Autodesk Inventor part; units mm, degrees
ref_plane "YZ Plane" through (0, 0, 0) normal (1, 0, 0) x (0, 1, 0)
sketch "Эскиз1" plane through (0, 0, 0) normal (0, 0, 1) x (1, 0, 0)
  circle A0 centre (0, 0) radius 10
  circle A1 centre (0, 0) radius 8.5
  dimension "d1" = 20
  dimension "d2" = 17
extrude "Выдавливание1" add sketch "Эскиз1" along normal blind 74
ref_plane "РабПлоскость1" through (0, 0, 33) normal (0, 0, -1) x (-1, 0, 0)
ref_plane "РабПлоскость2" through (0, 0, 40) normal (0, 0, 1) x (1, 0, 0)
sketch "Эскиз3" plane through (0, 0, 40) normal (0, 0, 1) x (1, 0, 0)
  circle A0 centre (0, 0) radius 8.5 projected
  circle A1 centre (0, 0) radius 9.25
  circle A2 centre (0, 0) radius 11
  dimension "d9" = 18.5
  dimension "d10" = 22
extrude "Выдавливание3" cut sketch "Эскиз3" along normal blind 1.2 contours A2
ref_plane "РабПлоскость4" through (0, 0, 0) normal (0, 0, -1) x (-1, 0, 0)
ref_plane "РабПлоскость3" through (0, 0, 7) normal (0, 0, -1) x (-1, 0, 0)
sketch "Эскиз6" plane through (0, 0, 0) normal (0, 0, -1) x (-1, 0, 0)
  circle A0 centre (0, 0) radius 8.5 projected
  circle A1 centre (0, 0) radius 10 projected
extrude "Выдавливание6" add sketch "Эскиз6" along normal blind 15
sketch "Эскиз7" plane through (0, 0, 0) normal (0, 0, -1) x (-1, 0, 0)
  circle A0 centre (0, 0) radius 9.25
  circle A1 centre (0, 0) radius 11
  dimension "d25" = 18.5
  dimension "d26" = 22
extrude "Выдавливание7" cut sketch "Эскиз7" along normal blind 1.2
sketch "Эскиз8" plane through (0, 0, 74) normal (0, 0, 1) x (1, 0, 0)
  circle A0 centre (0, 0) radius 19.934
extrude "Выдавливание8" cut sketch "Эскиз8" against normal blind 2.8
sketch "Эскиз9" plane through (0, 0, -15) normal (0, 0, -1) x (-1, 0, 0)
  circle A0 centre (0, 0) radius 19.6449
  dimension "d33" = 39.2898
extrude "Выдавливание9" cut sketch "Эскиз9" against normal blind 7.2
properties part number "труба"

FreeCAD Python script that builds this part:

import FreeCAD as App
import Part
import Sketcher
Q = App.Units.Quantity

doc = App.newDocument("Part")
body = doc.addObject("PartDesign::Body", "Body")

sketch1 = doc.addObject("Sketcher::SketchObject", "Sketch")
body.addObject(sketch1)
sketch1.AttachmentSupport = (doc.XY_Plane, [""])
sketch1.MapMode = "FlatFace"
sketch1.addGeometry([
    Part.Circle(App.Vector(0, 0, 0), App.Vector(0, 0, 1), 10),
    Part.Circle(App.Vector(0, 0, 0), App.Vector(0, 0, 1), 8),
], False)
sketch1.addConstraint([
    Sketcher.Constraint("Coincident", 0, 3, -1, 1),
    Sketcher.Constraint("Coincident", 1, 3, -1, 1),
    Sketcher.Constraint("Diameter", 0, Q("20 mm")),
    Sketcher.Constraint("Diameter", 1, Q("17 mm")),
])
pad1 = doc.addObject("PartDesign::Pad", "Pad")
body.addObject(pad1)
pad1.Profile = sketch1
pad1.Length = 74

sketch2 = doc.addObject("Sketcher::SketchObject", "Sketch001")
body.addObject(sketch2)
sketch2.AttachmentSupport = (doc.XY_Plane, [""])
sketch2.MapMode = "FlatFace"
sketch2.AttachmentOffset = App.Placement(App.Vector(0, 0, 40), App.Rotation())
sketch2.addGeometry([
    Part.Circle(App.Vector(0, 0, 0), App.Vector(0, 0, 1), 11),
    Part.Circle(App.Vector(0, 0, 0), App.Vector(0, 0, 1), 9),
], False)
sketch2.addConstraint([
    Sketcher.Constraint("Coincident", 0, 3, -1, 1),
    Sketcher.Constraint("Coincident", 1, 3, -1, 1),
    Sketcher.Constraint("Diameter", 0, Q("22 mm")),
    Sketcher.Constraint("Diameter", 1, Q("18.5 mm")),
])
pocket1 = doc.addObject("PartDesign::Pocket", "Pocket")
body.addObject(pocket1)
pocket1.Profile = sketch2
pocket1.Length = 1.2
pocket1.Reversed = True

sketch3 = doc.addObject("Sketcher::SketchObject", "Sketch002")
body.addObject(sketch3)
sketch3.AttachmentSupport = (doc.XY_Plane, [""])
sketch3.MapMode = "FlatFace"
sketch3.addGeometry([
    Part.Circle(App.Vector(0, 0, 0), App.Vector(0, 0, 1), 10),
    Part.Circle(App.Vector(0, 0, 0), App.Vector(0, 0, 1), 8),
], False)
sketch3.addConstraint([
    Sketcher.Constraint("Coincident", 0, 3, -1, 1),
    Sketcher.Constraint("Coincident", 1, 3, -1, 1),
    Sketcher.Constraint("Diameter", 0, Q("20 mm")),
    Sketcher.Constraint("Diameter", 1, Q("17 mm")),
])
pad2 = doc.addObject("PartDesign::Pad", "Pad001")
body.addObject(pad2)
pad2.Profile = sketch3
pad2.Length = 15
pad2.Reversed = True

sketch4 = doc.addObject("Sketcher::SketchObject", "Sketch003")
body.addObject(sketch4)
sketch4.AttachmentSupport = (doc.XY_Plane, [""])
sketch4.MapMode = "FlatFace"
sketch4.addGeometry([
    Part.Circle(App.Vector(0, 0, 0), App.Vector(0, 0, 1), 11),
    Part.Circle(App.Vector(0, 0, 0), App.Vector(0, 0, 1), 9),
], False)
sketch4.addConstraint([
    Sketcher.Constraint("Coincident", 0, 3, -1, 1),
    Sketcher.Constraint("Coincident", 1, 3, -1, 1),
    Sketcher.Constraint("Diameter", 0, Q("22 mm")),
    Sketcher.Constraint("Diameter", 1, Q("18.5 mm")),
])
pocket2 = doc.addObject("PartDesign::Pocket", "Pocket001")
body.addObject(pocket2)
pocket2.Profile = sketch4
pocket2.Length = 1.2

sketch5 = doc.addObject("Sketcher::SketchObject", "Sketch004")
body.addObject(sketch5)
sketch5.AttachmentSupport = (doc.XY_Plane, [""])
sketch5.MapMode = "FlatFace"
sketch5.AttachmentOffset = App.Placement(App.Vector(0, 0, 74), App.Rotation())
sketch5.addGeometry(Part.Circle(App.Vector(0, 0, 0), App.Vector(0, 0, 1), 20), False)
sketch5.addConstraint([
    Sketcher.Constraint("Coincident", 0, 3, -1, 1),
    Sketcher.Constraint("Diameter", 0, Q("39.868 mm")),
])
pocket3 = doc.addObject("PartDesign::Pocket", "Pocket002")
body.addObject(pocket3)
pocket3.Profile = sketch5
pocket3.Length = 2.8

sketch6 = doc.addObject("Sketcher::SketchObject", "Sketch005")
body.addObject(sketch6)
sketch6.AttachmentSupport = (doc.XY_Plane, [""])
sketch6.MapMode = "FlatFace"
sketch6.AttachmentOffset = App.Placement(App.Vector(0, 0, -15), App.Rotation())
sketch6.addGeometry(Part.Circle(App.Vector(0, 0, 0), App.Vector(0, 0, 1), 20), False)
sketch6.addConstraint([
    Sketcher.Constraint("Coincident", 0, 3, -1, 1),
    Sketcher.Constraint("Diameter", 0, Q("39.2898 mm")),
])
pocket4 = doc.addObject("PartDesign::Pocket", "Pocket003")
body.addObject(pocket4)
pocket4.Profile = sketch6
pocket4.Length = 7.2
pocket4.Reversed = True

doc.recompute()
